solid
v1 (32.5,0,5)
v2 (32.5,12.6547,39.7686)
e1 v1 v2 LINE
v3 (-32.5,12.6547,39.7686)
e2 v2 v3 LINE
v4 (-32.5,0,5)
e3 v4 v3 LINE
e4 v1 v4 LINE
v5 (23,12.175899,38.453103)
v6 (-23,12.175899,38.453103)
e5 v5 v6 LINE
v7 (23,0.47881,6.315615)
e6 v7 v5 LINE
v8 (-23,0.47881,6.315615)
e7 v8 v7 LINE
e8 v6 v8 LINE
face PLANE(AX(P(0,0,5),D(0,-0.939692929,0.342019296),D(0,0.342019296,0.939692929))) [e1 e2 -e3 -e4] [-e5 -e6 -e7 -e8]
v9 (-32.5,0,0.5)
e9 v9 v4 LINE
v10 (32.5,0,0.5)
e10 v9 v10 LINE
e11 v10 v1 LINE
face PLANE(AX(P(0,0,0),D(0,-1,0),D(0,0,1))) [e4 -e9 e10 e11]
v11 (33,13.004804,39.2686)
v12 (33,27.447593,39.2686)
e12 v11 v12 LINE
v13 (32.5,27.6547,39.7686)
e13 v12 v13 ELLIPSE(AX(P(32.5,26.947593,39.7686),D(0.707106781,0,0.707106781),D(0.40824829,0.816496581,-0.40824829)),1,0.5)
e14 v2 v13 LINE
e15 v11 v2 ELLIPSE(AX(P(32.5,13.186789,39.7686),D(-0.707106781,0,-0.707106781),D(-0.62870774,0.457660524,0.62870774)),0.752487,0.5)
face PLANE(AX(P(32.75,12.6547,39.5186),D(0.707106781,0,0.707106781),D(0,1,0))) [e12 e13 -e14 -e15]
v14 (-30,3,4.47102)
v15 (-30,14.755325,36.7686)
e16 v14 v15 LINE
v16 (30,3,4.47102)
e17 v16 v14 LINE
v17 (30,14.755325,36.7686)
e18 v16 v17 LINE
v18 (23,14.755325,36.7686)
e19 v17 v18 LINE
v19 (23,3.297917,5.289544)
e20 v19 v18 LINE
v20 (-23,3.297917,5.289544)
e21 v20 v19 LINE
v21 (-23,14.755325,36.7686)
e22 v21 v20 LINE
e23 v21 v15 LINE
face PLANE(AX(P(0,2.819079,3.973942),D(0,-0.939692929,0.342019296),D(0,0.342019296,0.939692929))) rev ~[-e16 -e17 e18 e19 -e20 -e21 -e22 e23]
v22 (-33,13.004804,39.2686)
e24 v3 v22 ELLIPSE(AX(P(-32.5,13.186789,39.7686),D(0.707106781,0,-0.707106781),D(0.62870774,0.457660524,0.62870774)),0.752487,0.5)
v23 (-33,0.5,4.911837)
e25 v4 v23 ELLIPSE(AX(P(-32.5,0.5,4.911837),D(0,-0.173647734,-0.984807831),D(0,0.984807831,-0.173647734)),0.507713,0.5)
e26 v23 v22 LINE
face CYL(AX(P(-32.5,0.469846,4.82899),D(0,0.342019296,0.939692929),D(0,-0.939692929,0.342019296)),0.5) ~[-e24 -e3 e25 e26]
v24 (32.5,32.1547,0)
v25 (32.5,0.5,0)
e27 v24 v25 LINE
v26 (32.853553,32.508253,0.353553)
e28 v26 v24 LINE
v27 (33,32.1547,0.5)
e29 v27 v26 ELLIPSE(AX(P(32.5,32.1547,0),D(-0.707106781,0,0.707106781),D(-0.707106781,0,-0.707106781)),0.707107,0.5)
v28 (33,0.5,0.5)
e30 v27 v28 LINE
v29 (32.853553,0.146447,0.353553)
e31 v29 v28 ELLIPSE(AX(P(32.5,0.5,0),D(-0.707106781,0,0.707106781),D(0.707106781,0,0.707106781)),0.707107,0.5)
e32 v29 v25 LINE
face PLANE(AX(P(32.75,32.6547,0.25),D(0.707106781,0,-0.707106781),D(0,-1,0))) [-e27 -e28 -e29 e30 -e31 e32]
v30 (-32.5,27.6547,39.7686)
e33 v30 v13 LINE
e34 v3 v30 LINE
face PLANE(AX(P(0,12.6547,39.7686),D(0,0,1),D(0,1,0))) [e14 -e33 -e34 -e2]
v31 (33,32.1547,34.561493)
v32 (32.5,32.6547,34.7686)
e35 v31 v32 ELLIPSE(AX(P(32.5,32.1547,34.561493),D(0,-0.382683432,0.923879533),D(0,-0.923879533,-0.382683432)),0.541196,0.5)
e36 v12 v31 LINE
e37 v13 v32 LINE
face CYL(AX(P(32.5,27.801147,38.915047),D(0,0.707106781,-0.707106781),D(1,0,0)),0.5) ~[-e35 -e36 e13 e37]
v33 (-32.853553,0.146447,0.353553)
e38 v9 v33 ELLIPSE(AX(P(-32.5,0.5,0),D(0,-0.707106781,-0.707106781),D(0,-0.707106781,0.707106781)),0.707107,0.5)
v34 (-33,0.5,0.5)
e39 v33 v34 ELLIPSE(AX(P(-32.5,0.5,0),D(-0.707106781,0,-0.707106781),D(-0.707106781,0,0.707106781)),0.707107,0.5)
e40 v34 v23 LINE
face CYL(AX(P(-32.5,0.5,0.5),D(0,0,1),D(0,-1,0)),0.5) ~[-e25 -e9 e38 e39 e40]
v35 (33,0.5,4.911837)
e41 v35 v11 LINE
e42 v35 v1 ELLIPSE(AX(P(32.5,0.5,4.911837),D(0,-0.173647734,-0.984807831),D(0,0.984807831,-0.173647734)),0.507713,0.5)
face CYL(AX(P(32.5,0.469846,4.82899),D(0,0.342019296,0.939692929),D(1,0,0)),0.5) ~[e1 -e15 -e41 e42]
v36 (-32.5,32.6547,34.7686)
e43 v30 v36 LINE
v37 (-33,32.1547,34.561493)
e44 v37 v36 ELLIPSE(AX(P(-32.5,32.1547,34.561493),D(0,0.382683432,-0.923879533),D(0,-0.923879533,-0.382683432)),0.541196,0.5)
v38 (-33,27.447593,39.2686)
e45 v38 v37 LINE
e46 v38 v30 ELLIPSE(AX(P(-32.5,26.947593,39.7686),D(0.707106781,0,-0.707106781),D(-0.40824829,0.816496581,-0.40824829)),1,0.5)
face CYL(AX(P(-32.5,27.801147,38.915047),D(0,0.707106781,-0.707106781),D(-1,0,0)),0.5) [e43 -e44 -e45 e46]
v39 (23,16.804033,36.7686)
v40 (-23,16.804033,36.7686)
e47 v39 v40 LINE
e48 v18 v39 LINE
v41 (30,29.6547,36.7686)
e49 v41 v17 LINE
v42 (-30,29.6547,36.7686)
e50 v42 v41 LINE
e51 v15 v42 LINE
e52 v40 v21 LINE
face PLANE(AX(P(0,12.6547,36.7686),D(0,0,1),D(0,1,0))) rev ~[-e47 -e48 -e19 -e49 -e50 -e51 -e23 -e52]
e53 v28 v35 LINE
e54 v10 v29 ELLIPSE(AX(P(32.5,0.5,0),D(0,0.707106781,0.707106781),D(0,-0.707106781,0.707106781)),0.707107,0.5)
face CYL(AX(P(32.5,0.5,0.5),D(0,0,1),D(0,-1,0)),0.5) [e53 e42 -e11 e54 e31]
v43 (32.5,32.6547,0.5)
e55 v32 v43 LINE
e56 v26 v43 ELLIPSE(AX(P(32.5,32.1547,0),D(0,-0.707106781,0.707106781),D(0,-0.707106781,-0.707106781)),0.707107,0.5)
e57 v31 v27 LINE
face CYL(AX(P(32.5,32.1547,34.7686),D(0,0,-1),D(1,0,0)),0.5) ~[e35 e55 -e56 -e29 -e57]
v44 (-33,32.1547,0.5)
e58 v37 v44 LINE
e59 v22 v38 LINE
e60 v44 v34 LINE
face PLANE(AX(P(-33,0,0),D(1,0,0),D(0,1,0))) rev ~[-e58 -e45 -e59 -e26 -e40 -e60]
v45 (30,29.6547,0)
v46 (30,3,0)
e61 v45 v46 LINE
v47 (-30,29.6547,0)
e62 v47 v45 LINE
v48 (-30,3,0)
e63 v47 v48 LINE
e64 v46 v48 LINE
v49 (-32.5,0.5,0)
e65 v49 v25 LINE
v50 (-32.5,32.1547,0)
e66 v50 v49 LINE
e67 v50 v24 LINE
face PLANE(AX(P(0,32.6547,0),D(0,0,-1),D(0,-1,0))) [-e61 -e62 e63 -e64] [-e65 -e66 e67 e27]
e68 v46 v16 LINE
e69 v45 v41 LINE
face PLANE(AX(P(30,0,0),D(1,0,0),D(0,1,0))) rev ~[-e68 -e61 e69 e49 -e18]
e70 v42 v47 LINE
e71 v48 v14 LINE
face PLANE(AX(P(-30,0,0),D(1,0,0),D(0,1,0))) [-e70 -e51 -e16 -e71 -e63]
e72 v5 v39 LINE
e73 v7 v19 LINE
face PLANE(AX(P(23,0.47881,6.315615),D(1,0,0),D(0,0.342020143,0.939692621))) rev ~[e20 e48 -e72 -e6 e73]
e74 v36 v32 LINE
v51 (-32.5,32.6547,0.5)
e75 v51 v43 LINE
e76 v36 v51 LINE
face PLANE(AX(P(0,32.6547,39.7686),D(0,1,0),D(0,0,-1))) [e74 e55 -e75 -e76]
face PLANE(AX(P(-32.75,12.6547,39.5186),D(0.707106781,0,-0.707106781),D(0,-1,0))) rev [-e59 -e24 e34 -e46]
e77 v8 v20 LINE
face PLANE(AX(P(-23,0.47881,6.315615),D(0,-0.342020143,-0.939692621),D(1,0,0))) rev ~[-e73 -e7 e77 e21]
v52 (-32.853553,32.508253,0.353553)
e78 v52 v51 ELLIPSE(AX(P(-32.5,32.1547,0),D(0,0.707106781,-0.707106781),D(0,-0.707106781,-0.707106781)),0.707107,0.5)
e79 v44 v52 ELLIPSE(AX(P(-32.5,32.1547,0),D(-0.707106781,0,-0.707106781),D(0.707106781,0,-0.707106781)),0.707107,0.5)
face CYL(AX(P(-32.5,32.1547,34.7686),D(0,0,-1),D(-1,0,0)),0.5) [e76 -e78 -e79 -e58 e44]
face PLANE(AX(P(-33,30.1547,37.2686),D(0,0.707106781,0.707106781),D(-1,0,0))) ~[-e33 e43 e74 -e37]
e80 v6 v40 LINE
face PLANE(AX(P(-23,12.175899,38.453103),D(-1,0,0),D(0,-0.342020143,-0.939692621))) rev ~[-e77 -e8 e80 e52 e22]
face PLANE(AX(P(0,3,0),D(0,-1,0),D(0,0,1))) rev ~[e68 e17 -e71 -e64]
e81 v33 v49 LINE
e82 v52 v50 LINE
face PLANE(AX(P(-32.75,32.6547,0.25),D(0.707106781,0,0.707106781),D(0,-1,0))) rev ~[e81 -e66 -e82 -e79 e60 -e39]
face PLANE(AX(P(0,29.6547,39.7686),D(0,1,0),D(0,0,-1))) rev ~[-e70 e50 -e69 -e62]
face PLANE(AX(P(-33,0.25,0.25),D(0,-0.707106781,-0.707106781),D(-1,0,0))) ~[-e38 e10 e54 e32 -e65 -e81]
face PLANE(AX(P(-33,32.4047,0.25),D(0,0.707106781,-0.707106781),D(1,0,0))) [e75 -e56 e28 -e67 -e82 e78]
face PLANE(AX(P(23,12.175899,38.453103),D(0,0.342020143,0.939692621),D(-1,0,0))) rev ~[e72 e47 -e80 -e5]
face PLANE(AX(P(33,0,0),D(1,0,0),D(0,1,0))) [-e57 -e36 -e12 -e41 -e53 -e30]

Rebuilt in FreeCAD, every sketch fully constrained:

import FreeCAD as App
import Part
import Sketcher
from FreeCAD import Vector
Q = App.Units.Quantity


def edges_at(feature, points):
    """Names of the edges that pass closest to the given points."""
    edges = feature.Shape.Edges
    near = lambda p: min(range(len(edges)), key=lambda i: edges[i].distToShape(Part.Vertex(*p))[0])
    return sorted({f"Edge{near(p) + 1}" for p in points})


def faces_at(feature, points):
    """Names of the faces that lie closest to the given points."""
    faces = feature.Shape.Faces
    near = lambda p: min(range(len(faces)), key=lambda i: faces[i].distToShape(Part.Vertex(*p))[0])
    return sorted({f"Face{near(p) + 1}" for p in points})


def add_polygon(sketch, points):
    """Adds a closed chain of lines whose ends are joined by coincident constraints."""
    first, n = sketch.GeometryCount, len(points)
    for a, b in zip(points, points[1:] + points[:1]):
        sketch.addGeometry(Part.LineSegment(App.Vector(*a, 0), App.Vector(*b, 0)), False)
    for i in range(n):
        sketch.addConstraint(Sketcher.Constraint("Coincident", first + i, 2, first + (i + 1) % n, 1))

doc = App.newDocument("Part")
params = doc.addObject("Spreadsheet::Sheet", "Params")
for row, (alias, value) in enumerate([
    ("sketch1_width", "20 mm"),
    ("sketch1_length", "37 mm"),
    ("sketch1_height", "5 mm"),
    ("pad1_length", "66 mm"),
    ("thickness_wall", "3 mm"),
    ("chamfer_size", "5 mm"),
    ("chamfer2_size", "0.5 mm"),
    ("fillet_radius", "0.5 mm"),
    ("sketch2_width", "46 mm"),
    ("sketch2_height", "34.2 mm"),
    ("pocket1_length", "6 mm"),
], start=1):
    params.set(f"A{row}", alias)
    params.set(f"B{row}", "=" + value)
    params.setAlias(f"B{row}", alias)

body = doc.addObject("PartDesign::Body", "Body")

# Sketch on YZ plane
sketch1 = doc.addObject("Sketcher::SketchObject", "Sketch")
body.addObject(sketch1)
sketch1.AttachmentSupport = (doc.YZ_Plane, [""])
sketch1.MapMode = "FlatFace"
add_polygon(sketch1, [(0, 5), (0, 0), (32.6547, 0), (32.6547, 39.7686), (12.6547, 39.7686)])  # lines 0-4
sketch1.addConstraint([
    Sketcher.Constraint("Vertical", 0),
    Sketcher.Constraint("Horizontal", 1),
    Sketcher.Constraint("Vertical", 2),
    Sketcher.Constraint("Horizontal", 3),
    Sketcher.Constraint("Coincident", 0, 2, -1, 1),
    Sketcher.Constraint("DistanceX", 3, 2, 3, 1, Q("20 mm")),
    Sketcher.Constraint("Distance", 4, Q("37 mm")),
    Sketcher.Constraint("DistanceY", 0, 2, 0, 1, Q("5 mm")),
    Sketcher.Constraint("Angle", 4, Q("-110 deg")),
])
sketch1.setExpression("Constraints[10]", "Params.sketch1_width")
sketch1.setExpression("Constraints[11]", "Params.sketch1_length")
sketch1.setExpression("Constraints[12]", "Params.sketch1_height")
pad1 = doc.addObject("PartDesign::Pad", "Pad")
body.addObject(pad1)
pad1.Profile = sketch1
pad1.setExpression("Length", "Params.pad1_length")
pad1.Midplane = True
doc.recompute()

thickness = doc.addObject("PartDesign::Thickness", "Thickness")
body.addObject(thickness)
thickness.Base = (pad1, faces_at(pad1, [(11, 10.885, 0)]))
thickness.setExpression("Value", "Params.thickness_wall")
thickness.Reversed = True
thickness.Join = "Intersection"
doc.recompute()

chamfer = doc.addObject("PartDesign::Chamfer", "Chamfer")
body.addObject(chamfer)
chamfer.Base = (thickness, edges_at(thickness, [(0, 32.655, 39.769)]))
chamfer.setExpression("Size", "Params.chamfer_size")
doc.recompute()

chamfer2 = doc.addObject("PartDesign::Chamfer", "Chamfer001")
body.addObject(chamfer2)
chamfer2.Base = (chamfer, edges_at(chamfer, [
    (33, 22.655, 39.769),
    (-33, 22.655, 39.769),
    (0, 32.655, 0),
    (33, 16.327, 0),
    (0, 0, 0),
    (-33, 16.327, 0),
]))
chamfer2.setExpression("Size", "Params.chamfer2_size")
doc.recompute()

fillet = doc.addObject("PartDesign::Fillet", "Fillet")
body.addObject(fillet)
fillet.Base = (chamfer2, edges_at(chamfer2, [
    (-33, 6.236, 22.134),
    (33, 6.236, 22.134),
    (-33, 32.655, 17.634),
    (33, 32.655, 17.634),
    (33, 30.405, 37.019),
    (-33, 30.405, 37.019),
    (-33, 0, 2.75),
    (33, 0, 2.75),
]))
fillet.setExpression("Radius", "Params.fillet_radius")

# Sketch on an angled plane
sketch2 = doc.addObject("Sketcher::SketchObject", "Sketch001")
body.addObject(sketch2)
sketch2.Placement = App.Placement(Vector(0, -1.607, 0.5849), App.Rotation(Vector(1, 0, 0), Vector(0, 0.342020143, 0.939692621), Vector(0, -0.939692621, 0.342020143), "ZXY"))
add_polygon(sketch2, [(23, 6.0985), (23, 40.2985), (-23, 40.2985), (-23, 6.0985)])  # lines 0-3
sketch2.addConstraint([
    Sketcher.Constraint("Vertical", 0),
    Sketcher.Constraint("Horizontal", 1),
    Sketcher.Constraint("Vertical", 2),
    Sketcher.Constraint("Horizontal", 3),
    Sketcher.Constraint("DistanceX", 1, 2, 1, 1, Q("46 mm")),
    Sketcher.Constraint("DistanceY", 0, 1, 0, 2, Q("34.2 mm")),
    Sketcher.Constraint("DistanceX", -1, 1, 0, 2, Q("23 mm")),
    Sketcher.Constraint("DistanceY", -1, 1, 0, 2, Q("40.2985 mm")),
])
sketch2.setExpression("Constraints[8]", "Params.sketch2_width")
sketch2.setExpression("Constraints[9]", "Params.sketch2_height")
pocket1 = doc.addObject("PartDesign::Pocket", "Pocket")
body.addObject(pocket1)
pocket1.Profile = sketch2
pocket1.setExpression("Length", "Params.pocket1_length")

doc.recompute()
